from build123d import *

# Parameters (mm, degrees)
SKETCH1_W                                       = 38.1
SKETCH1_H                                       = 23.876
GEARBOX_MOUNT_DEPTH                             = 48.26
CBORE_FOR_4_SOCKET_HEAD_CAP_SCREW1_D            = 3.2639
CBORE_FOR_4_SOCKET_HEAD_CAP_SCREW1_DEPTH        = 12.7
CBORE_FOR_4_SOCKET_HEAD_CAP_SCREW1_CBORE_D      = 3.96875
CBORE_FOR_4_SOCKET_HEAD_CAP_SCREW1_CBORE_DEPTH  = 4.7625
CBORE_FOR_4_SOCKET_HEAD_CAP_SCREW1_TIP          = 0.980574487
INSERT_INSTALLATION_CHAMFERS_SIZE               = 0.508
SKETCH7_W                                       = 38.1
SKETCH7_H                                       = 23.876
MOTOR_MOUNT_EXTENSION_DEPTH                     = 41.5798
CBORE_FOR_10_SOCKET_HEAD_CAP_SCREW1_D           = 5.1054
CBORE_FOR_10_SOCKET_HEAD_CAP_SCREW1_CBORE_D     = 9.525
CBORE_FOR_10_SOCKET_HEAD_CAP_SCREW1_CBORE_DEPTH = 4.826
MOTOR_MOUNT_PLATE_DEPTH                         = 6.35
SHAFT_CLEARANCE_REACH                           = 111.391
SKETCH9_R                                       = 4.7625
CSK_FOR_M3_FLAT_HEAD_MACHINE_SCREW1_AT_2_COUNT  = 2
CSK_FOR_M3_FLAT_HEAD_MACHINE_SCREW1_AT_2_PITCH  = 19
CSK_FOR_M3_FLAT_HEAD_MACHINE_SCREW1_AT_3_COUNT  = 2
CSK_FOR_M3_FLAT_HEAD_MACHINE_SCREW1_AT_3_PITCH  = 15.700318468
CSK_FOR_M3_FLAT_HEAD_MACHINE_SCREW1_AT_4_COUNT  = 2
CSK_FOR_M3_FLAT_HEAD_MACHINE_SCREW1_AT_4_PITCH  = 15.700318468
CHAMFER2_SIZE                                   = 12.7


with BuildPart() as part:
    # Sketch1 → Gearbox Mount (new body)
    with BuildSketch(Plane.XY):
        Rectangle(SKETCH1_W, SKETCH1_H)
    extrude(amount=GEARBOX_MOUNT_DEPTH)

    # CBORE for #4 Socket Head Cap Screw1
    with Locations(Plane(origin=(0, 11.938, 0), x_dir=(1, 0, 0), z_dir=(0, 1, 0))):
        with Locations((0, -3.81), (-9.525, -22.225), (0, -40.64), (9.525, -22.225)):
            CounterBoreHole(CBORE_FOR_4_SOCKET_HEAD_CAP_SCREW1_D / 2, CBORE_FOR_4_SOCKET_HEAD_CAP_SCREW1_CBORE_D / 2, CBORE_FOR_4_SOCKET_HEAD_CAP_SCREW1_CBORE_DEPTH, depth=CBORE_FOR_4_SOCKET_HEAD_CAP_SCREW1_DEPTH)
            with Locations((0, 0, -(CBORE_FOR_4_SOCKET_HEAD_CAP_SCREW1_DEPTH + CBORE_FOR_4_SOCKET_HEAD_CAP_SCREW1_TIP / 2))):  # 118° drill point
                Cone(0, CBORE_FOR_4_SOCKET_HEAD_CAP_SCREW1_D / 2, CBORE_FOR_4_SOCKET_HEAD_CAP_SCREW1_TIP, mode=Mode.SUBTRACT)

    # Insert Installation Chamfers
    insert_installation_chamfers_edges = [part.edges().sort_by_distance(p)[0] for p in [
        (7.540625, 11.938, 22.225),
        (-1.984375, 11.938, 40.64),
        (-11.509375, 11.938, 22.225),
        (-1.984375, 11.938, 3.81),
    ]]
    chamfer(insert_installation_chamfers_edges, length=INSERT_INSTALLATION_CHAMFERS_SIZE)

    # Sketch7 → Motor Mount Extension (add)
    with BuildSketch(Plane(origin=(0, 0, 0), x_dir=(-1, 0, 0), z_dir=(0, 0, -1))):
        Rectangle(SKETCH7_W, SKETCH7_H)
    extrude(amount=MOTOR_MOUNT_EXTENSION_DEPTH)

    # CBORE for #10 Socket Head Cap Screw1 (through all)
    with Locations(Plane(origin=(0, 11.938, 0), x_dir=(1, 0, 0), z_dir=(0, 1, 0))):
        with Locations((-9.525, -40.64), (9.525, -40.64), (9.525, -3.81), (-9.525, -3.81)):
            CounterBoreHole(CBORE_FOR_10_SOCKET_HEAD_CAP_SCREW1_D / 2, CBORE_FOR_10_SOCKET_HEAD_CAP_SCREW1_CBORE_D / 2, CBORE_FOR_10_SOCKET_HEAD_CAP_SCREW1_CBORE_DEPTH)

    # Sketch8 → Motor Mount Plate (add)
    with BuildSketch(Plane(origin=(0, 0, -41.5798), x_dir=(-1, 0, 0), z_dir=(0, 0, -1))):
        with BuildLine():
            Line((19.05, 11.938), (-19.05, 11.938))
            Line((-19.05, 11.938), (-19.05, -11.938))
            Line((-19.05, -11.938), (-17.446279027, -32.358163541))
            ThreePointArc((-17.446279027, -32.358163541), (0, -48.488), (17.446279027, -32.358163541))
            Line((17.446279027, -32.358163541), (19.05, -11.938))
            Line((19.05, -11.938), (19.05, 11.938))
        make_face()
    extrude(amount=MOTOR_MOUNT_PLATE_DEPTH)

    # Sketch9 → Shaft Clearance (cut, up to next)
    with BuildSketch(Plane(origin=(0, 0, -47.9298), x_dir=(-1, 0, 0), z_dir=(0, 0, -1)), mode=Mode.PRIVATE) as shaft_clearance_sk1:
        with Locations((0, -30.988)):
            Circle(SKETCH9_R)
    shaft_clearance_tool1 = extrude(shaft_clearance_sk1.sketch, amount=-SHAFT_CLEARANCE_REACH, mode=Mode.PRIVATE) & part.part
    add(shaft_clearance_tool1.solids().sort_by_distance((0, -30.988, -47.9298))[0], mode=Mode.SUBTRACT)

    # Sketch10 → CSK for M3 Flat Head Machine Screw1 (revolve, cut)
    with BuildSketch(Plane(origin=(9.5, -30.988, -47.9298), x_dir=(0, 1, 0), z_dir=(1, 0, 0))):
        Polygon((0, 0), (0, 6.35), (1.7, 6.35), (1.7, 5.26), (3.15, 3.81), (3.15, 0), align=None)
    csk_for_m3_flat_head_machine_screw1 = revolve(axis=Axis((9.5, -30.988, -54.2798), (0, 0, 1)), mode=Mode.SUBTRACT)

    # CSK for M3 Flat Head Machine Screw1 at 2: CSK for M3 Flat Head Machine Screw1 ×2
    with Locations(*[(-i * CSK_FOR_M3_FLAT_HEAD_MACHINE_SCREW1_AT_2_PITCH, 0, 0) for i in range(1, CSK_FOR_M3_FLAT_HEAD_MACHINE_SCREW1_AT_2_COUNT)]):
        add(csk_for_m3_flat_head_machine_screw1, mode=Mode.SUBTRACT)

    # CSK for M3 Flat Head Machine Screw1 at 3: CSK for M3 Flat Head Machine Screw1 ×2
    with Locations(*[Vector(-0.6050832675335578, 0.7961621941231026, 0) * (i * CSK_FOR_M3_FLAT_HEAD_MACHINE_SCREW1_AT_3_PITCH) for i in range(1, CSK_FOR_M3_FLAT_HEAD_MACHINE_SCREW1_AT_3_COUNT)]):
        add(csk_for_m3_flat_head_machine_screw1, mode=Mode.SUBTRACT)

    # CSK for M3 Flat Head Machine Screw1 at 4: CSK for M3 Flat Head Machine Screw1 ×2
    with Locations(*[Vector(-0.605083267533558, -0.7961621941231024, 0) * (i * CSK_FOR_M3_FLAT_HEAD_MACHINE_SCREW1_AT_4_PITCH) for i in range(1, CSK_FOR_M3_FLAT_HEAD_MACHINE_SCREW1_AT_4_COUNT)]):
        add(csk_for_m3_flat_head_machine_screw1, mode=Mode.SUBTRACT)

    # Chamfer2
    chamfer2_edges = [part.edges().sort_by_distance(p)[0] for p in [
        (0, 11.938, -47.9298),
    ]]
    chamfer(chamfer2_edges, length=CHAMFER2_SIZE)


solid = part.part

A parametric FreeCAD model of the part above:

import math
import FreeCAD as App
import Part
import Sketcher
Q = App.Units.Quantity


def edges_at(feature, points):
    """Names of the edges that pass closest to the given points."""
    edges = feature.Shape.Edges
    near = lambda p: min(range(len(edges)), key=lambda i: edges[i].distToShape(Part.Vertex(*p))[0])
    return sorted({f"Edge{near(p) + 1}" for p in points})


def add_polygon(sketch, points):
    """Adds a closed chain of lines whose ends are joined by coincident constraints."""
    first, n = sketch.GeometryCount, len(points)
    for a, b in zip(points, points[1:] + points[:1]):
        sketch.addGeometry(Part.LineSegment(App.Vector(*a, 0), App.Vector(*b, 0)), False)
    for i in range(n):
        sketch.addConstraint(Sketcher.Constraint("Coincident", first + i, 2, first + (i + 1) % n, 1))

doc = App.newDocument("Part")
body = doc.addObject("PartDesign::Body", "Body")

# Sketch on XY plane
sketch1 = body.newObject("Sketcher::SketchObject", "Sketch")
sketch1.AttachmentSupport = (doc.getObject("XY_Plane"), [""])
sketch1.MapMode = "FlatFace"
add_polygon(sketch1, [(-19, 12), (-19, -12), (19, -12), (19, 12)])  # lines 0-3
sketch1.addConstraint([
    Sketcher.Constraint("Vertical", 0),
    Sketcher.Constraint("Horizontal", 1),
    Sketcher.Constraint("Vertical", 2),
    Sketcher.Constraint("Horizontal", 3),
    Sketcher.Constraint("Symmetric", 0, 2, 2, 2, -1, 1),
    Sketcher.Constraint("DistanceX", 1, 1, 1, 2, Q("1.5 in")),
    Sketcher.Constraint("DistanceY", 0, 2, 0, 1, Q("0.94 in")),
])
pad1 = body.newObject("PartDesign::Pad", "Pad")
pad1.Profile = sketch1
pad1.Length = Q("1.9 in")

# Sketch on XZ plane
sketch2 = body.newObject("Sketcher::SketchObject", "Sketch001")
sketch2.AttachmentSupport = (doc.getObject("XZ_Plane"), [""])
sketch2.MapMode = "FlatFace"
sketch2.AttachmentOffset = App.Placement(App.Vector(0, 0, -0.47 * 25.4), App.Rotation())
sketch2.addGeometry([
    Part.Circle(App.Vector(0, 3.8, 0), App.Vector(0, 0, 1), 1.6),
    Part.Circle(App.Vector(-9.5, 22.2, 0), App.Vector(0, 0, 1), 1.6),
    Part.Circle(App.Vector(0, 40.6, 0), App.Vector(0, 0, 1), 1.6),
    Part.Circle(App.Vector(9.5, 22.2, 0), App.Vector(0, 0, 1), 1.6),
], False)
sketch2.addConstraint([
    Sketcher.Constraint("Equal", 0, 1),
    Sketcher.Constraint("Equal", 1, 2),
    Sketcher.Constraint("Equal", 2, 3),
    Sketcher.Constraint("Symmetric", 1, 3, 3, 3, -2),
    Sketcher.Constraint("PointOnObject", 0, 3, -2),
    Sketcher.Constraint("PointOnObject", 2, 3, -2),
    Sketcher.Constraint("Diameter", 0, Q("0.1285 in")),
    Sketcher.Constraint("DistanceY", -1, 1, 2, 3, Q("1.6 in")),
    Sketcher.Constraint("DistanceY", -1, 1, 0, 3, Q("0.15 in")),
    Sketcher.Constraint("DistanceX", 1, 3, 3, 3, Q("0.75 in")),
    Sketcher.Constraint("DistanceY", -1, 1, 1, 3, Q("0.875 in")),
])
doc.recompute()
hole = body.newObject("PartDesign::Hole", "Hole")
hole.Profile = sketch2
hole.ThreadType = "None"
hole.Diameter = Q("0.1285 in")
hole.DepthType = "Dimension"
hole.Depth = Q("0.5 in")
hole.DrillPoint = "Angled"
hole.DrillPointAngle = 118
hole.HoleCutType = "Counterbore"
hole.HoleCutDiameter = Q("0.15625 in")
hole.HoleCutDepth = Q("0.1875 in")
hole.Reversed = True
doc.recompute()

chamfer = body.newObject("PartDesign::Chamfer", "Chamfer")
chamfer.Base = (hole, edges_at(hole, [
    (7.541, 11.938, 22.225),
    (-1.984, 11.938, 40.64),
    (-11.509, 11.938, 22.225),
    (-1.984, 11.938, 3.81),
]))
chamfer.Size = Q("0.02 in")

# Sketch on XY plane
sketch3 = body.newObject("Sketcher::SketchObject", "Sketch002")
sketch3.AttachmentSupport = (doc.getObject("XY_Plane"), [""])
sketch3.MapMode = "FlatFace"
add_polygon(sketch3, [(19, 12), (19, -12), (-19, -12), (-19, 12)])  # lines 0-3
sketch3.addConstraint([
    Sketcher.Constraint("Vertical", 0),
    Sketcher.Constraint("Horizontal", 1),
    Sketcher.Constraint("Vertical", 2),
    Sketcher.Constraint("Horizontal", 3),
    Sketcher.Constraint("Symmetric", 0, 2, 2, 2, -1, 1),
    Sketcher.Constraint("DistanceX", 1, 2, 1, 1, Q("1.5 in")),
    Sketcher.Constraint("DistanceY", 0, 2, 0, 1, Q("0.94 in")),
])
pad2 = body.newObject("PartDesign::Pad", "Pad001")
pad2.Profile = sketch3
pad2.Length = Q("1.637 in")
pad2.Reversed = True

# Sketch on XZ plane
sketch4 = body.newObject("Sketcher::SketchObject", "Sketch003")
sketch4.AttachmentSupport = (doc.getObject("XZ_Plane"), [""])
sketch4.MapMode = "FlatFace"
sketch4.AttachmentOffset = App.Placement(App.Vector(0, 0, -0.47 * 25.4), App.Rotation())
sketch4.addGeometry([
    Part.Circle(App.Vector(-9.5, 40.6, 0), App.Vector(0, 0, 1), 2.6),
    Part.Circle(App.Vector(9.5, 40.6, 0), App.Vector(0, 0, 1), 2.6),
    Part.Circle(App.Vector(9.5, 3.8, 0), App.Vector(0, 0, 1), 2.6),
    Part.Circle(App.Vector(-9.5, 3.8, 0), App.Vector(0, 0, 1), 2.6),
], False)
sketch4.addConstraint([
    Sketcher.Constraint("Equal", 0, 1),
    Sketcher.Constraint("Equal", 1, 2),
    Sketcher.Constraint("Equal", 2, 3),
    Sketcher.Constraint("Symmetric", 0, 3, 1, 3, -2),
    Sketcher.Constraint("Symmetric", 2, 3, 3, 3, -2),
    Sketcher.Constraint("Vertical", 1, 3, 2, 3),
    Sketcher.Constraint("Diameter", 0, Q("0.201 in")),
    Sketcher.Constraint("DistanceY", -1, 1, 0, 3, Q("1.6 in")),
    Sketcher.Constraint("DistanceY", -1, 1, 2, 3, Q("0.15 in")),
    Sketcher.Constraint("DistanceX", 0, 3, 1, 3, Q("0.75 in")),
])
doc.recompute()
hole2 = body.newObject("PartDesign::Hole", "Hole001")
hole2.Profile = sketch4
hole2.ThreadType = "None"
hole2.Diameter = Q("0.201 in")
hole2.DepthType = "ThroughAll"
hole2.HoleCutType = "Counterbore"
hole2.HoleCutDiameter = Q("0.375 in")
hole2.HoleCutDepth = Q("0.19 in")
hole2.Reversed = True

# Sketch on XY plane
sketch5 = body.newObject("Sketcher::SketchObject", "Sketch004")
sketch5.AttachmentSupport = (doc.getObject("XY_Plane"), [""])
sketch5.MapMode = "FlatFace"
sketch5.AttachmentOffset = App.Placement(App.Vector(0, 0, -1.637 * 25.4), App.Rotation())
sketch5.addGeometry([
    Part.LineSegment(App.Vector(-19, 12, 0), App.Vector(19, 12, 0)),  # 0
    Part.LineSegment(App.Vector(19, 12, 0), App.Vector(19, -12, 0)),  # 1
    Part.LineSegment(App.Vector(19, -12, 0), App.Vector(17, -32, 0)),  # 2
    Part.ArcOfCircle(Part.Circle(App.Vector(0, -31, 0), App.Vector(0, 0, 1), 18), math.radians(-176), math.radians(-4)),  # 3
    Part.LineSegment(App.Vector(-17, -32, 0), App.Vector(-19, -12, 0)),  # 4
    Part.LineSegment(App.Vector(-19, -12, 0), App.Vector(-19, 12, 0)),  # 5
], False)
sketch5.addConstraint([
    Sketcher.Constraint("Coincident", 0, 2, 1, 1),
    Sketcher.Constraint("Coincident", 1, 2, 2, 1),
    Sketcher.Constraint("Tangent", 2, 2, 3, 2),
    Sketcher.Constraint("Tangent", 3, 1, 4, 1),
    Sketcher.Constraint("Coincident", 4, 2, 5, 1),
    Sketcher.Constraint("Coincident", 5, 2, 0, 1),
    Sketcher.Constraint("Horizontal", 0),
    Sketcher.Constraint("Vertical", 1),
    Sketcher.Constraint("Vertical", 5),
    Sketcher.Constraint("Symmetric", 0, 2, 4, 2, -1, 1),
    Sketcher.Constraint("Symmetric", 2, 2, 3, 1, -2),
    Sketcher.Constraint("DistanceX", 0, 1, 0, 2, Q("1.5 in")),
    Sketcher.Constraint("DistanceY", 1, 2, 1, 1, Q("0.94 in")),
    Sketcher.Constraint("DistanceY", 3, 3, -1, 1, Q("1.22 in")),
    Sketcher.Constraint("Radius", 3, 17.5),
])
pad3 = body.newObject("PartDesign::Pad", "Pad002")
pad3.Profile = sketch5
pad3.Length = Q("0.25 in")
pad3.Reversed = True

# Sketch on XY plane
sketch6 = body.newObject("Sketcher::SketchObject", "Sketch005")
sketch6.AttachmentSupport = (doc.getObject("XY_Plane"), [""])
sketch6.MapMode = "FlatFace"
sketch6.AttachmentOffset = App.Placement(App.Vector(0, 0, -1.887 * 25.4), App.Rotation())
sketch6.addGeometry(Part.Circle(App.Vector(0, -31, 0), App.Vector(0, 0, 1), 4.8), False)
sketch6.addConstraint([
    Sketcher.Constraint("PointOnObject", 0, 3, -2),
    Sketcher.Constraint("Diameter", 0, Q("0.375 in")),
    Sketcher.Constraint("DistanceY", 0, 3, -1, 1, Q("1.22 in")),
])
pocket1 = body.newObject("PartDesign::Pocket", "Pocket")
pocket1.Profile = sketch6
pocket1.Type = "UpToFirst"
pocket1.Reversed = True

# Sketch on YZ plane
sketch7 = body.newObject("Sketcher::SketchObject", "Sketch006")
sketch7.AttachmentSupport = (doc.getObject("YZ_Plane"), [""])
sketch7.MapMode = "FlatFace"
sketch7.AttachmentOffset = App.Placement(App.Vector(0, 0, 9.5), App.Rotation())
add_polygon(sketch7, [(-31, -41.6), (-31, -47.9), (-27.8, -47.9), (-27.8, -44.1), (-29.3, -42.7), (-29.3, -41.6)])  # lines 0-5
sketch7.addGeometry(Part.LineSegment(App.Vector(-31, -47.9, 0), App.Vector(-31, -41.6, 0)), True)  # axis
sketch7.addConstraint([
    Sketcher.Constraint("Vertical", 0),
    Sketcher.Constraint("Horizontal", 1),
    Sketcher.Constraint("Vertical", 2),
    Sketcher.Constraint("Vertical", 4),
    Sketcher.Constraint("Horizontal", 5),
    Sketcher.Constraint("Vertical", 6),
    Sketcher.Constraint("Coincident", 6, 1, 0, 2),
    Sketcher.Constraint("Horizontal", 4, 2, 6, 2),
    Sketcher.Constraint("Angle", 3, Q("135 deg")),
    Sketcher.Constraint("DistanceY", 0, 2, 0, 1, Q("0.25 in")),
    Sketcher.Constraint("DistanceY", 2, 1, 2, 2, Q("0.15 in")),
    Sketcher.Constraint("DistanceX", 0, 2, -1, 1, Q("1.22 in")),
    Sketcher.Constraint("DistanceY", 0, 2, -1, 1, Q("1.887 in")),
    Sketcher.Constraint("DistanceX", 1, 1, 1, 2, 3.15),
    Sketcher.Constraint("DistanceX", 5, 2, 5, 1, 1.7),
])
groove = body.newObject("PartDesign::Groove", "Groove")
groove.Profile = sketch7
groove.ReferenceAxis = (sketch7, ["Axis0"])
groove.Angle = 360
doc.recompute()

linearpattern = body.newObject("PartDesign::LinearPattern", "LinearPattern")
linearpattern.Originals = [groove]
linearpattern.Direction = (doc.getObject("X_Axis"), [""])
linearpattern.Mode = "offset"
linearpattern.Offset = 19
linearpattern.Occurrences = 2
linearpattern.Reversed = True
body.Tip = linearpattern
doc.recompute()

datumline = body.newObject("PartDesign::Line", "DatumLine")
datumline.Placement = App.Placement(App.Vector(0, 0, 0), App.Rotation(App.Vector(0, 0, 1), App.Vector(-0.605083268, 0.796162194, 0)))
linearpattern2 = body.newObject("PartDesign::LinearPattern", "LinearPattern001")
linearpattern2.Originals = [groove]
linearpattern2.Direction = (datumline, [""])
linearpattern2.Mode = "offset"
linearpattern2.Offset = 15.700318
linearpattern2.Occurrences = 2
body.Tip = linearpattern2
doc.recompute()

datumline2 = body.newObject("PartDesign::Line", "DatumLine001")
datumline2.Placement = App.Placement(App.Vector(0, 0, 0), App.Rotation(App.Vector(0, 0, 1), App.Vector(-0.605083268, -0.796162194, 0)))
linearpattern3 = body.newObject("PartDesign::LinearPattern", "LinearPattern002")
linearpattern3.Originals = [groove]
linearpattern3.Direction = (datumline2, [""])
linearpattern3.Mode = "offset"
linearpattern3.Offset = 15.700318
linearpattern3.Occurrences = 2
body.Tip = linearpattern3
doc.recompute()

chamfer2 = body.newObject("PartDesign::Chamfer", "Chamfer001")
chamfer2.Base = (linearpattern3, edges_at(linearpattern3, [(0, 11.938, -47.93)]))
chamfer2.Size = Q("0.5 in")

doc.recompute()
